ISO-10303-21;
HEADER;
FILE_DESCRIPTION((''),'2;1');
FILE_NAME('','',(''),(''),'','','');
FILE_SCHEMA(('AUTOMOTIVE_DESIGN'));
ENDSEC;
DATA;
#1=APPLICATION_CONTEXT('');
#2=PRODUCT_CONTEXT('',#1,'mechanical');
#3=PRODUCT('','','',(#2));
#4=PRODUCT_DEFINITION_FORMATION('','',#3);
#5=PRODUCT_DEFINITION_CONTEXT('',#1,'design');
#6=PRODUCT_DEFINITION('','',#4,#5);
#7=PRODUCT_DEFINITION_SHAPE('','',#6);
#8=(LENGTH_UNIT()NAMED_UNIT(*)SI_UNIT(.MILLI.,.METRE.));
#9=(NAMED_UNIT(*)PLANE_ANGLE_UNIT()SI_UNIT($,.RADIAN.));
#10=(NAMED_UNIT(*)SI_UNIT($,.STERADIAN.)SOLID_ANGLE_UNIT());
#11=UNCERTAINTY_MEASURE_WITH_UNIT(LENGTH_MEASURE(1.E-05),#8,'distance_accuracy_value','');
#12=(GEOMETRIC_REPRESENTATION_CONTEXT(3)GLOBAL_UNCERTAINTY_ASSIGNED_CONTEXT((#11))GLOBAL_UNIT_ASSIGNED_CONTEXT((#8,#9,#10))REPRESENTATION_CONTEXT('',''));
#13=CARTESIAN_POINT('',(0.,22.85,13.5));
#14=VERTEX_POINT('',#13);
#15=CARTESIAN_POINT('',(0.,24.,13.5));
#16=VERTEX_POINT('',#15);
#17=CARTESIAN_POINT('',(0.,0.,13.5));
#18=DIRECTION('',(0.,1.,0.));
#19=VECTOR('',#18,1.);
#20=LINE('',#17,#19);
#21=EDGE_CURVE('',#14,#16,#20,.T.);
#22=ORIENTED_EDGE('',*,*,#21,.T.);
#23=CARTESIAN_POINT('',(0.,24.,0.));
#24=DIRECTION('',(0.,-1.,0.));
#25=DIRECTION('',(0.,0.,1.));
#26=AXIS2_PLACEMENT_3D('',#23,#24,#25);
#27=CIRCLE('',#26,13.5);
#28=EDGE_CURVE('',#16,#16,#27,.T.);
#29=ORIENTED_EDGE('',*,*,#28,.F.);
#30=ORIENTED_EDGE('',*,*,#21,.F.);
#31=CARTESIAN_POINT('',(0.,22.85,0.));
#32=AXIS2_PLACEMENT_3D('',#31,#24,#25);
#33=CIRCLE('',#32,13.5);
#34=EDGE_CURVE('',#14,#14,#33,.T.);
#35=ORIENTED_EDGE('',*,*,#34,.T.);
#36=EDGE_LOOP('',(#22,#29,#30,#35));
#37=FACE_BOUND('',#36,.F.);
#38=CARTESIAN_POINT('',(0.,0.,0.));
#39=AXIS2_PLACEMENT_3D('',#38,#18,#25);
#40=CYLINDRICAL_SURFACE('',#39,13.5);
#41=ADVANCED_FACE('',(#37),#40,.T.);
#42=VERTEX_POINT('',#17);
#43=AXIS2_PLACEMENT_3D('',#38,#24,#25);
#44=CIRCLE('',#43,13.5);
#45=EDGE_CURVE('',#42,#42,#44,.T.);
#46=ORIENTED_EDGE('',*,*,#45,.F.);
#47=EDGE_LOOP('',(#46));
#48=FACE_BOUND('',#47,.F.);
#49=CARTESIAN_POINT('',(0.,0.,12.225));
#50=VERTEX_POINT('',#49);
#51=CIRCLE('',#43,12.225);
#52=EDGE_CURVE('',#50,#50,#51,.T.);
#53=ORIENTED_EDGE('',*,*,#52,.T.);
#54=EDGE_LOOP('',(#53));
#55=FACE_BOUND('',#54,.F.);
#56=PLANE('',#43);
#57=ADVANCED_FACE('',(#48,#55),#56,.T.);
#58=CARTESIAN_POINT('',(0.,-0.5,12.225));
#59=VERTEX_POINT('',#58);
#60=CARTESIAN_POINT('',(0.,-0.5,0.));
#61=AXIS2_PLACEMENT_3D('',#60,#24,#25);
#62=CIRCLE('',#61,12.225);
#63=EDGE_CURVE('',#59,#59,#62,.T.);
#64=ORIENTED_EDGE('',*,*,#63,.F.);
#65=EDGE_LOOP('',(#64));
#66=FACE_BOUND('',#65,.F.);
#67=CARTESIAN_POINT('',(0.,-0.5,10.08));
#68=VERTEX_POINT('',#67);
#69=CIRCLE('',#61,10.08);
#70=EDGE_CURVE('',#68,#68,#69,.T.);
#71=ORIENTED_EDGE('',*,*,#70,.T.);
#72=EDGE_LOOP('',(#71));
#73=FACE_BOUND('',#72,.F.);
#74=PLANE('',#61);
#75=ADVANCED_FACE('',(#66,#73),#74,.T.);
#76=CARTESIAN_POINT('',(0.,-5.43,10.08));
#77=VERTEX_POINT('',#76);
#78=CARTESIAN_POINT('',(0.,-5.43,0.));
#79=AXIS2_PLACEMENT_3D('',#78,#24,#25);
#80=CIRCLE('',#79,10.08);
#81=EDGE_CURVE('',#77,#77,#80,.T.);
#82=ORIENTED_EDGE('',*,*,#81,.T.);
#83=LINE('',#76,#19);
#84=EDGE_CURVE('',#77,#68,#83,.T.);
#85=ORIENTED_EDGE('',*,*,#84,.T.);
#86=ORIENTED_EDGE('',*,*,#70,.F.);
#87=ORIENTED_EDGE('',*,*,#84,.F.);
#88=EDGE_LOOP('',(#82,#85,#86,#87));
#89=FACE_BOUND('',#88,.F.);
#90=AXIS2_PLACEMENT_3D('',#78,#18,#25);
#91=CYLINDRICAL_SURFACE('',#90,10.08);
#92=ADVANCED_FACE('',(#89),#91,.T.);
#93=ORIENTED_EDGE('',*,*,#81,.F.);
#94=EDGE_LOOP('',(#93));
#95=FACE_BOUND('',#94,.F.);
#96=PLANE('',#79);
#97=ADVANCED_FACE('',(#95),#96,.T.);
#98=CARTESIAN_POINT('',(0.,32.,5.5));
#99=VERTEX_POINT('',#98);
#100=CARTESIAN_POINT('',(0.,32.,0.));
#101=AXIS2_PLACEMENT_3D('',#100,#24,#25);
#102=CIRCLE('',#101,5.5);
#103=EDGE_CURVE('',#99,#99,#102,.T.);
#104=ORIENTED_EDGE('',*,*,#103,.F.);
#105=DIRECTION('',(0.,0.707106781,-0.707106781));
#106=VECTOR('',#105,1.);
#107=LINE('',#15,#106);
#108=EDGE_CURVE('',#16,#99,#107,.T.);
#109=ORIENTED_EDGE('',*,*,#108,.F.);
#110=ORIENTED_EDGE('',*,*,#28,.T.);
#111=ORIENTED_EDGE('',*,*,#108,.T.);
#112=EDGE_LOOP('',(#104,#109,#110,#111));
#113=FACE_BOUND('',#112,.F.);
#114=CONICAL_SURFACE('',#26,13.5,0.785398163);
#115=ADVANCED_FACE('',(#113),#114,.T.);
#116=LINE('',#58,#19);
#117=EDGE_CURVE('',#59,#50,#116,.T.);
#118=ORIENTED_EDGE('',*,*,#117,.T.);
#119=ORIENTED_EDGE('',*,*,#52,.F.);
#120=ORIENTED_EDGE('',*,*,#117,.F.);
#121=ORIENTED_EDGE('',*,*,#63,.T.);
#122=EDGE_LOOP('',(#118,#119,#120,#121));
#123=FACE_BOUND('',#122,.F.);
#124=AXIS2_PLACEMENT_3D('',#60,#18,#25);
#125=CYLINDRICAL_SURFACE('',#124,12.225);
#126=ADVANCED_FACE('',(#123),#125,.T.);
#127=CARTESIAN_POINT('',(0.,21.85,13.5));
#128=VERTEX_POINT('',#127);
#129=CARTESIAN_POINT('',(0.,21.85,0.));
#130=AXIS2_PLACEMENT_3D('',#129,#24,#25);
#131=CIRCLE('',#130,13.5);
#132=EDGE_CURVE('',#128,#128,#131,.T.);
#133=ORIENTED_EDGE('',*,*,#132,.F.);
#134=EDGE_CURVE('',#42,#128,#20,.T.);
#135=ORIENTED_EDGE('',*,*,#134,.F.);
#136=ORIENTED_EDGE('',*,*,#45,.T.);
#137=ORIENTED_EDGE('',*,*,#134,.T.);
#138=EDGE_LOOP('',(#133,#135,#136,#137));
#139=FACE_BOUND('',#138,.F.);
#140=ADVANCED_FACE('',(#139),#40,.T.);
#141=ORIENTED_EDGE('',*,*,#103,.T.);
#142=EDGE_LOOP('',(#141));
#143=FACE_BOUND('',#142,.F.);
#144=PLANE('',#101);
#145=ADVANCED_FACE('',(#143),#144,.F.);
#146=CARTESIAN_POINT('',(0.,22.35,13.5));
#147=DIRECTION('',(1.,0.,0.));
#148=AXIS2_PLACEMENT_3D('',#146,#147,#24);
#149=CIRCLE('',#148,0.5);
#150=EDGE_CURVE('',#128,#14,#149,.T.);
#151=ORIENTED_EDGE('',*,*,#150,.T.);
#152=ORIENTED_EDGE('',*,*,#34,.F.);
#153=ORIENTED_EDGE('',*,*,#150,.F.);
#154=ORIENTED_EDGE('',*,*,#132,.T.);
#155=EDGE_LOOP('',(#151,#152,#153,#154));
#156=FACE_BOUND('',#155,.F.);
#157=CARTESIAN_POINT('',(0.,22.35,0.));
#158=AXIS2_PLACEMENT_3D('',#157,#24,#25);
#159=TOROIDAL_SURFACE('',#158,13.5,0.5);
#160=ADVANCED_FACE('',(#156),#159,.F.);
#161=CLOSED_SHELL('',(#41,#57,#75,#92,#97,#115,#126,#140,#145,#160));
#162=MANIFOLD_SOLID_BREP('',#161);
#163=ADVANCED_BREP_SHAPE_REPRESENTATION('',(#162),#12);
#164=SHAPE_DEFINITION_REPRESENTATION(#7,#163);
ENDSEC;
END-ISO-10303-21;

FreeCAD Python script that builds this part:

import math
import FreeCAD as App
import Part
import Sketcher
from FreeCAD import Vector
Q = App.Units.Quantity

doc = App.newDocument("Part")
body = doc.addObject("PartDesign::Body", "Body")

sketch1 = body.newObject("Sketcher::SketchObject", "Sketch")
sketch1.AttachmentSupport = (doc.getObject("YZ_Plane"), [""])
sketch1.MapMode = "FlatFace"
sketch1.addGeometry([
    Part.LineSegment(Vector(21.9, 13.5, 0), Vector(0, 13.5, 0)),
    Part.LineSegment(Vector(0, 13.5, 0), Vector(0, 12.2, 0)),
    Part.LineSegment(Vector(0, 12.2, 0), Vector(-0.5, 12.2, 0)),
    Part.LineSegment(Vector(-0.5, 12.2, 0), Vector(-0.5, 10.1, 0)),
    Part.LineSegment(Vector(-0.5, 10.1, 0), Vector(-5.4, 10.1, 0)),
    Part.LineSegment(Vector(-5.4, 10.1, 0), Vector(-5.4, 0, 0)),
    Part.LineSegment(Vector(-5.4, 0, 0), Vector(32, 0, 0)),
    Part.LineSegment(Vector(32, 0, 0), Vector(32, 5.5, 0)),
    Part.LineSegment(Vector(32, 5.5, 0), Vector(24, 13.5, 0)),
    Part.LineSegment(Vector(24, 13.5, 0), Vector(22.9, 13.5, 0)),
    Part.ArcOfCircle(Part.Circle(Vector(22.4, 13.5, 0), Vector(0, 0, 1), 0.5), math.radians(180), math.radians(360)),
], False)
sketch1.addConstraint([
    Sketcher.Constraint("Coincident", 0, 2, 1, 1),
    Sketcher.Constraint("Coincident", 1, 2, 2, 1),
    Sketcher.Constraint("Coincident", 2, 2, 3, 1),
    Sketcher.Constraint("Coincident", 3, 2, 4, 1),
    Sketcher.Constraint("Coincident", 4, 2, 5, 1),
    Sketcher.Constraint("Coincident", 5, 2, 6, 1),
    Sketcher.Constraint("Coincident", 6, 2, 7, 1),
    Sketcher.Constraint("Coincident", 7, 2, 8, 1),
    Sketcher.Constraint("Coincident", 8, 2, 9, 1),
    Sketcher.Constraint("Coincident", 9, 2, 10, 2),
    Sketcher.Constraint("Coincident", 10, 1, 0, 1),
    Sketcher.Constraint("Horizontal", 0),
    Sketcher.Constraint("Vertical", 1),
    Sketcher.Constraint("Horizontal", 2),
    Sketcher.Constraint("Vertical", 3),
    Sketcher.Constraint("Horizontal", 4),
    Sketcher.Constraint("Vertical", 5),
    Sketcher.Constraint("Horizontal", 6),
    Sketcher.Constraint("Vertical", 7),
    Sketcher.Constraint("Horizontal", 9),
    Sketcher.Constraint("PointOnObject", 0, 2, -2),
    Sketcher.Constraint("PointOnObject", 5, 2, -1),
    Sketcher.Constraint("Horizontal", 10, 3, 0, 2),
    Sketcher.Constraint("Horizontal", 0, 2, 8, 2),
    Sketcher.Constraint("Radius", 10, 0.5),
    Sketcher.Constraint("Angle", 8, Q("135 deg")),
    Sketcher.Constraint("DistanceX", 2, 2, 2, 1, 0.5),
    Sketcher.Constraint("DistanceY", 7, 1, 7, 2, 5.5),
    Sketcher.Constraint("DistanceX", -1, 1, 8, 2, 24.0),
    Sketcher.Constraint("DistanceX", 4, 2, 4, 1, 4.93),
    Sketcher.Constraint("DistanceX", 9, 2, 9, 1, 1.15),
    Sketcher.Constraint("DistanceY", 5, 2, 5, 1, 10.08),
    Sketcher.Constraint("DistanceY", -1, 1, 1, 2, 12.225),
    Sketcher.Constraint("DistanceX", -1, 1, 6, 2, 32.0),
])
revolution = body.newObject("PartDesign::Revolution", "Revolution")
revolution.Profile = sketch1
revolution.ReferenceAxis = (sketch1, ["H_Axis"])
revolution.Angle = 360

doc.recompute()
